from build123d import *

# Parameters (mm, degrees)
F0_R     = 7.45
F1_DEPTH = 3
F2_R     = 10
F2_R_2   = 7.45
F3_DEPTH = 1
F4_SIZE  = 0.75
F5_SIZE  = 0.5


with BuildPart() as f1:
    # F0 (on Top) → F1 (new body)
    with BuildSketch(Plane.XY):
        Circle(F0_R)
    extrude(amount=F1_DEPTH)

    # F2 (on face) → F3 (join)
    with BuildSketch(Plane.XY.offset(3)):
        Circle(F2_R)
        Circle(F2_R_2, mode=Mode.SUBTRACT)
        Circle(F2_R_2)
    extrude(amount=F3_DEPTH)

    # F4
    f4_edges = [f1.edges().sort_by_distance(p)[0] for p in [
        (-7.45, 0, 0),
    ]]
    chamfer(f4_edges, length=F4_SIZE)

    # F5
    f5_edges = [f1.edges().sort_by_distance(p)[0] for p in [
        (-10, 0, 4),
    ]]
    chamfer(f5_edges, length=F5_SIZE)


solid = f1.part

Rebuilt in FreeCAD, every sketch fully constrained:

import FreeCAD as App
import Part
import Sketcher
from FreeCAD import Vector
Q = App.Units.Quantity


def edges_at(feature, points):
    """Names of the edges that pass closest to the given points."""
    edges = feature.Shape.Edges
    near = lambda p: min(range(len(edges)), key=lambda i: edges[i].distToShape(Part.Vertex(*p))[0])
    return sorted({f"Edge{near(p) + 1}" for p in points})

doc = App.newDocument("Part")
body = doc.addObject("PartDesign::Body", "Body")

sketch1 = doc.addObject("Sketcher::SketchObject", "Sketch")
body.addObject(sketch1)
sketch1.AttachmentSupport = (doc.XY_Plane, [""])
sketch1.MapMode = "FlatFace"
sketch1.addGeometry(Part.Circle(Vector(0, 0, 0), Vector(0, 0, 1), 7), False)
sketch1.addConstraint([
    Sketcher.Constraint("Coincident", 0, 3, -1, 1),
    Sketcher.Constraint("Diameter", 0, Q("14.9 mm")),
])
pad1 = doc.addObject("PartDesign::Pad", "Pad")
body.addObject(pad1)
pad1.Profile = sketch1
pad1.Length = 3

sketch2 = doc.addObject("Sketcher::SketchObject", "Sketch001")
body.addObject(sketch2)
sketch2.AttachmentSupport = (doc.XY_Plane, [""])
sketch2.MapMode = "FlatFace"
sketch2.AttachmentOffset = App.Placement(Vector(0, 0, 3), App.Rotation())
sketch2.addGeometry(Part.Circle(Vector(0, 0, 0), Vector(0, 0, 1), 10), False)
sketch2.addConstraint([
    Sketcher.Constraint("Coincident", 0, 3, -1, 1),
    Sketcher.Constraint("Diameter", 0, Q("20 mm")),
])
pad2 = doc.addObject("PartDesign::Pad", "Pad001")
body.addObject(pad2)
pad2.Profile = sketch2
pad2.Length = 1
doc.recompute()

chamfer = doc.addObject("PartDesign::Chamfer", "Chamfer")
body.addObject(chamfer)
chamfer.Base = (pad2, edges_at(pad2, [(-7.45, 0, 0)]))
chamfer.Size = 0.75
doc.recompute()

chamfer2 = doc.addObject("PartDesign::Chamfer", "Chamfer001")
body.addObject(chamfer2)
chamfer2.Base = (chamfer, edges_at(chamfer, [(-10, 0, 4)]))
chamfer2.Size = 0.5

doc.recompute()
